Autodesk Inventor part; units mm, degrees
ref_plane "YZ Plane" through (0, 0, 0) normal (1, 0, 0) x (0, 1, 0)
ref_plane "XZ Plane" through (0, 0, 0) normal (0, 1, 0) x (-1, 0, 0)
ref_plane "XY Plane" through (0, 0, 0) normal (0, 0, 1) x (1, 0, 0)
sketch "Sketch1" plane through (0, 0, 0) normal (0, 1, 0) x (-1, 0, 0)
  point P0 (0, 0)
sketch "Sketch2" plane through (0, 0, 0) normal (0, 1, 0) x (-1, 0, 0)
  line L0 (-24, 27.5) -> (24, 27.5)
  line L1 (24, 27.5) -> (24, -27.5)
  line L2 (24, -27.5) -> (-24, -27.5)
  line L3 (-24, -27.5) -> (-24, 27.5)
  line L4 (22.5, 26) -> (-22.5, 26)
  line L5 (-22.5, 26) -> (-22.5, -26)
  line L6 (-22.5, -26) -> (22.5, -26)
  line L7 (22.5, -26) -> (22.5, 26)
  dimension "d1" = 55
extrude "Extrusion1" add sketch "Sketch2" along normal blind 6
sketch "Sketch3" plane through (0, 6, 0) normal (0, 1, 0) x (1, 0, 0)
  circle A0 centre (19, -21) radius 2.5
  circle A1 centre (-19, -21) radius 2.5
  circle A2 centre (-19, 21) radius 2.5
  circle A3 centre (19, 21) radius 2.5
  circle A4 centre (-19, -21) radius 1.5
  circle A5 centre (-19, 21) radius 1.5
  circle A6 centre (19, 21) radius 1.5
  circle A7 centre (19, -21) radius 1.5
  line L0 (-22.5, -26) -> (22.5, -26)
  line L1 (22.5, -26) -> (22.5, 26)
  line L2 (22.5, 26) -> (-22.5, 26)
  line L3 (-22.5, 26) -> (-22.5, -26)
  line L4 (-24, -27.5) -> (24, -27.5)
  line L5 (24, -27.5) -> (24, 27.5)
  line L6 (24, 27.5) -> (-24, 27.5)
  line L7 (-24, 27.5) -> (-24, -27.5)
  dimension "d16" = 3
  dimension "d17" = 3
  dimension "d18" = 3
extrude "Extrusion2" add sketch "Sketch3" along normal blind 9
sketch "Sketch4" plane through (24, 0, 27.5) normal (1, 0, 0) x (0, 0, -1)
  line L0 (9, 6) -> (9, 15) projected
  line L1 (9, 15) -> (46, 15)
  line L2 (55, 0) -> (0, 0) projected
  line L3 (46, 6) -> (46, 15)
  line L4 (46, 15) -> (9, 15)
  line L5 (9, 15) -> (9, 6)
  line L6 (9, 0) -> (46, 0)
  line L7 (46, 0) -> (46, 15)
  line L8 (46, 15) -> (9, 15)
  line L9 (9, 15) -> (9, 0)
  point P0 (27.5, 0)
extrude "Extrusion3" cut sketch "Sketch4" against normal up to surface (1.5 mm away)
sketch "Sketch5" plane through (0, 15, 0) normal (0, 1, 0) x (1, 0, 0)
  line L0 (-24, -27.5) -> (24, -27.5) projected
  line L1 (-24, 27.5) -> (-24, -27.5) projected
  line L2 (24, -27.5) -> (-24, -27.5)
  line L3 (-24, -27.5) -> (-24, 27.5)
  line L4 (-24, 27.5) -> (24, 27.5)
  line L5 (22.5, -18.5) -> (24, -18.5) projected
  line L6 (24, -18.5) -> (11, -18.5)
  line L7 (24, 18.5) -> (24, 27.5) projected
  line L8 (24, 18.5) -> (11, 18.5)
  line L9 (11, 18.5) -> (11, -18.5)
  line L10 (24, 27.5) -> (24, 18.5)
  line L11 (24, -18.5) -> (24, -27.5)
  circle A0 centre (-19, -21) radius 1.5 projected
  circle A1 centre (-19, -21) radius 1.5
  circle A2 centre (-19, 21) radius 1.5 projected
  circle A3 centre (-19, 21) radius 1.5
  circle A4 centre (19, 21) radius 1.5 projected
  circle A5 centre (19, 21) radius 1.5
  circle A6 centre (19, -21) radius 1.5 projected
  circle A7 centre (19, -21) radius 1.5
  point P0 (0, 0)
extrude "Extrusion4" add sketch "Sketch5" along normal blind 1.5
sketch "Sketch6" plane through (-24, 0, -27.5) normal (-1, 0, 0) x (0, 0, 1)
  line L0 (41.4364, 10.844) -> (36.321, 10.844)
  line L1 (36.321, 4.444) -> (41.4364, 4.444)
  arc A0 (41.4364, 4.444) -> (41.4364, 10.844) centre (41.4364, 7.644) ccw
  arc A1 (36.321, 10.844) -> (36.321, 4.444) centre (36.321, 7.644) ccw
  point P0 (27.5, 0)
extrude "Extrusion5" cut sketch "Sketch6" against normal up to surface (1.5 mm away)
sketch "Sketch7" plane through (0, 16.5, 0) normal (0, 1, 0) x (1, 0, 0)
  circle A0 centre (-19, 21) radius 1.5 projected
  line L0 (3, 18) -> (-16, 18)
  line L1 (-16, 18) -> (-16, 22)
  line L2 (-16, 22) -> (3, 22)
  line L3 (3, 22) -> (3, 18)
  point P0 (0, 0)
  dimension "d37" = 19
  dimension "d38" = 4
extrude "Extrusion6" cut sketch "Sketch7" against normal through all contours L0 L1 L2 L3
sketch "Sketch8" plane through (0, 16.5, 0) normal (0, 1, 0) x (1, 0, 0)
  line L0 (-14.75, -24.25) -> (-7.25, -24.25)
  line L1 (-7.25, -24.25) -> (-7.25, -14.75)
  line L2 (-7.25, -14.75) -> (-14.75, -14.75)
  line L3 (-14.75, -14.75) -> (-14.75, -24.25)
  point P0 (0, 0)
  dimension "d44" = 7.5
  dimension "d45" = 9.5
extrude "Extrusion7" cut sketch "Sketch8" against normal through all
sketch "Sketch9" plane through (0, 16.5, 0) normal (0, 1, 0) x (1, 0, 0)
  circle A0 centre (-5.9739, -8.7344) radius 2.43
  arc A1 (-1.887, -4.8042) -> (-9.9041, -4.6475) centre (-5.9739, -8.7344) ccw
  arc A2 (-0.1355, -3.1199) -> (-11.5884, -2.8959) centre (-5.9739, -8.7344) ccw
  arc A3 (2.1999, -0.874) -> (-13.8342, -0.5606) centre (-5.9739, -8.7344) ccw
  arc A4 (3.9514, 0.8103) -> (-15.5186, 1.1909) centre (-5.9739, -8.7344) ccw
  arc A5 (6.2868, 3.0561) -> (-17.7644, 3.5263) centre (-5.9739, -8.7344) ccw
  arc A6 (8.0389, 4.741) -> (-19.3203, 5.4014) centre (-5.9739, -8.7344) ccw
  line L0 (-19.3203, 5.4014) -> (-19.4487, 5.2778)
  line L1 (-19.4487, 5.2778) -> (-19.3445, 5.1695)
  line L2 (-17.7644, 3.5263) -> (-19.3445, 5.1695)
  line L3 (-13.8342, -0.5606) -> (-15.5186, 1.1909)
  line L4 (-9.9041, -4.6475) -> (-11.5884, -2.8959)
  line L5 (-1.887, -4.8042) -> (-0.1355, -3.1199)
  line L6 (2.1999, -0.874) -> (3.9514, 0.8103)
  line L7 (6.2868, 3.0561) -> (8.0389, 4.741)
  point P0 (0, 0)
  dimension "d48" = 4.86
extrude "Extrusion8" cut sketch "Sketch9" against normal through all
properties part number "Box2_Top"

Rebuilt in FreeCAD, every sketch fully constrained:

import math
import FreeCAD as App
import Part
import Sketcher

V = App.Vector
Q = App.Units.Quantity


def add_polygon(sketch, points):
    """Adds a closed chain of lines whose ends are joined by coincident constraints."""
    first, n = sketch.GeometryCount, len(points)
    for a, b in zip(points, points[1:] + points[:1]):
        sketch.addGeometry(Part.LineSegment(App.Vector(*a, 0), App.Vector(*b, 0)), False)
    for i in range(n):
        sketch.addConstraint(Sketcher.Constraint("Coincident", first + i, 2, first + (i + 1) % n, 1))

doc = App.newDocument("Part")
body = doc.addObject("PartDesign::Body", "Body")
body.AllowCompound = True

# Sketch on XZ plane
sketch1 = body.newObject("Sketcher::SketchObject", "Sketch")
sketch1.AttachmentSupport = (doc.getObject("XZ_Plane"), [""])
sketch1.MapMode = "FlatFace"
add_polygon(sketch1, [(-24, 27.5), (24, 27.5), (24, -27.5), (-24, -27.5)])  # lines 0-3
add_polygon(sketch1, [(22.5, 26), (-22.5, 26), (-22.5, -26), (22.5, -26)])  # lines 4-7
sketch1.addConstraint(Sketcher.Constraint("Horizontal", 0))
sketch1.addConstraint(Sketcher.Constraint("Vertical", 1))
sketch1.addConstraint(Sketcher.Constraint("Horizontal", 2))
sketch1.addConstraint(Sketcher.Constraint("Vertical", 3))
sketch1.addConstraint(Sketcher.Constraint("Horizontal", 4))
sketch1.addConstraint(Sketcher.Constraint("Vertical", 5))
sketch1.addConstraint(Sketcher.Constraint("Horizontal", 6))
sketch1.addConstraint(Sketcher.Constraint("Vertical", 7))
sketch1.addConstraint(Sketcher.Constraint("Symmetric", 0, 2, 2, 2, -1, 1))
sketch1.addConstraint(Sketcher.Constraint("Symmetric", 4, 2, 6, 2, -1, 1))
sketch1.addConstraint(Sketcher.Constraint("DistanceY", 1, 2, 1, 1, Q("55 mm")))
sketch1.addConstraint(Sketcher.Constraint("DistanceX", 0, 1, 0, 2, Q("48 mm")))
sketch1.addConstraint(Sketcher.Constraint("DistanceX", 4, 2, 4, 1, Q("45 mm")))
sketch1.addConstraint(Sketcher.Constraint("DistanceY", 5, 2, 5, 1, Q("52 mm")))
pad1 = body.newObject("PartDesign::Pad", "Pad")
pad1.Profile = sketch1
pad1.Length = 6
pad1.Reversed = True

# Sketch on XZ plane
sketch2 = body.newObject("Sketcher::SketchObject", "Sketch001")
sketch2.AttachmentSupport = (doc.getObject("XZ_Plane"), [""])
sketch2.MapMode = "FlatFace"
sketch2.AttachmentOffset = App.Placement(V(0, 0, -6), App.Rotation())
sketch2.addGeometry(Part.Circle(V(19, 21, 0), V(0, 0, 1), 2.5), False)  # 0
sketch2.addGeometry(Part.Circle(V(19, 21, 0), V(0, 0, 1), 1.5), False)  # 1
sketch2.addGeometry(Part.Circle(V(-19, 21, 0), V(0, 0, 1), 2.5), False)  # 2
sketch2.addGeometry(Part.Circle(V(-19, 21, 0), V(0, 0, 1), 1.5), False)  # 3
sketch2.addGeometry(Part.Circle(V(-19, -21, 0), V(0, 0, 1), 2.5), False)  # 4
sketch2.addGeometry(Part.Circle(V(-19, -21, 0), V(0, 0, 1), 1.5), False)  # 5
sketch2.addGeometry(Part.Circle(V(19, -21, 0), V(0, 0, 1), 2.5), False)  # 6
sketch2.addGeometry(Part.Circle(V(19, -21, 0), V(0, 0, 1), 1.5), False)  # 7
add_polygon(sketch2, [(-24, -27.5), (-24, 27.5), (24, 27.5), (24, -27.5)])  # lines 8-11
add_polygon(sketch2, [(22.5, 26), (-22.5, 26), (-22.5, -26), (22.5, -26)])  # lines 12-15
sketch2.addConstraint(Sketcher.Constraint("Vertical", 8))
sketch2.addConstraint(Sketcher.Constraint("Horizontal", 9))
sketch2.addConstraint(Sketcher.Constraint("Vertical", 10))
sketch2.addConstraint(Sketcher.Constraint("Horizontal", 11))
sketch2.addConstraint(Sketcher.Constraint("Horizontal", 12))
sketch2.addConstraint(Sketcher.Constraint("Vertical", 13))
sketch2.addConstraint(Sketcher.Constraint("Horizontal", 14))
sketch2.addConstraint(Sketcher.Constraint("Vertical", 15))
sketch2.addConstraint(Sketcher.Constraint("Coincident", 1, 3, 0, 3))
sketch2.addConstraint(Sketcher.Constraint("Coincident", 3, 3, 2, 3))
sketch2.addConstraint(Sketcher.Constraint("Coincident", 5, 3, 4, 3))
sketch2.addConstraint(Sketcher.Constraint("Coincident", 7, 3, 6, 3))
sketch2.addConstraint(Sketcher.Constraint("Equal", 0, 2))
sketch2.addConstraint(Sketcher.Constraint("Equal", 1, 3))
sketch2.addConstraint(Sketcher.Constraint("Equal", 2, 4))
sketch2.addConstraint(Sketcher.Constraint("Equal", 3, 5))
sketch2.addConstraint(Sketcher.Constraint("Equal", 4, 6))
sketch2.addConstraint(Sketcher.Constraint("Equal", 5, 7))
sketch2.addConstraint(Sketcher.Constraint("Symmetric", 0, 3, 4, 3, -1, 1))
sketch2.addConstraint(Sketcher.Constraint("Symmetric", 2, 3, 6, 3, -1, 1))
sketch2.addConstraint(Sketcher.Constraint("Symmetric", 8, 2, 10, 2, -1, 1))
sketch2.addConstraint(Sketcher.Constraint("Symmetric", 12, 2, 14, 2, -1, 1))
sketch2.addConstraint(Sketcher.Constraint("Symmetric", 0, 3, 2, 3, -2))
sketch2.addConstraint(Sketcher.Constraint("Diameter", 1, Q("3 mm")))
sketch2.addConstraint(Sketcher.Constraint("Diameter", 0, Q("5 mm")))
sketch2.addConstraint(Sketcher.Constraint("DistanceX", 9, 1, 9, 2, Q("48 mm")))
sketch2.addConstraint(Sketcher.Constraint("DistanceX", 12, 2, 12, 1, Q("45 mm")))
sketch2.addConstraint(Sketcher.Constraint("DistanceY", 8, 1, 8, 2, Q("55 mm")))
sketch2.addConstraint(Sketcher.Constraint("DistanceY", 13, 2, 13, 1, Q("52 mm")))
sketch2.addConstraint(Sketcher.Constraint("DistanceX", -1, 1, 0, 3, Q("19 mm")))
sketch2.addConstraint(Sketcher.Constraint("DistanceY", -1, 1, 0, 3, Q("21 mm")))
pad2 = body.newObject("PartDesign::Pad", "Pad001")
pad2.Profile = sketch2
pad2.Length = 9
pad2.Reversed = True

# Sketch on YZ plane
sketch3 = body.newObject("Sketcher::SketchObject", "Sketch002")
sketch3.AttachmentSupport = (doc.getObject("YZ_Plane"), [""])
sketch3.MapMode = "FlatFace"
sketch3.AttachmentOffset = App.Placement(V(0, 0, 24), App.Rotation())
add_polygon(sketch3, [(15, 18.5), (0, 18.5), (0, -18.5), (15, -18.5)])  # lines 0-3
sketch3.addConstraint(Sketcher.Constraint("Horizontal", 0))
sketch3.addConstraint(Sketcher.Constraint("Vertical", 1))
sketch3.addConstraint(Sketcher.Constraint("Horizontal", 2))
sketch3.addConstraint(Sketcher.Constraint("Vertical", 3))
sketch3.addConstraint(Sketcher.Constraint("Symmetric", 0, 2, 1, 2, -1, 1))
sketch3.addConstraint(Sketcher.Constraint("DistanceX", 0, 2, 0, 1, Q("15 mm")))
sketch3.addConstraint(Sketcher.Constraint("DistanceY", 1, 2, 1, 1, Q("37 mm")))
pocket1 = body.newObject("PartDesign::Pocket", "Pocket")
pocket1.Profile = sketch3
pocket1.Length = 1.5

# Sketch on XZ plane
sketch4 = body.newObject("Sketcher::SketchObject", "Sketch003")
sketch4.AttachmentSupport = (doc.getObject("XZ_Plane"), [""])
sketch4.MapMode = "FlatFace"
sketch4.AttachmentOffset = App.Placement(V(0, 0, -15), App.Rotation())
add_polygon(sketch4, [(-24, -27.5), (-24, 27.5), (24, 27.5), (24, 18.5), (11, 18.5), (11, -18.5), (24, -18.5), (24, -27.5)])  # lines 0-7
sketch4.addGeometry(Part.Circle(V(-19, 21, 0), V(0, 0, 1), 1.5), False)  # 8
sketch4.addGeometry(Part.Circle(V(19, 21, 0), V(0, 0, 1), 1.5), False)  # 9
sketch4.addGeometry(Part.Circle(V(-19, -21, 0), V(0, 0, 1), 1.5), False)  # 10
sketch4.addGeometry(Part.Circle(V(19, -21, 0), V(0, 0, 1), 1.5), False)  # 11
sketch4.addConstraint(Sketcher.Constraint("Vertical", 0))
sketch4.addConstraint(Sketcher.Constraint("Horizontal", 1))
sketch4.addConstraint(Sketcher.Constraint("Vertical", 2))
sketch4.addConstraint(Sketcher.Constraint("Horizontal", 3))
sketch4.addConstraint(Sketcher.Constraint("Vertical", 4))
sketch4.addConstraint(Sketcher.Constraint("Horizontal", 5))
sketch4.addConstraint(Sketcher.Constraint("Vertical", 6))
sketch4.addConstraint(Sketcher.Constraint("Horizontal", 7))
sketch4.addConstraint(Sketcher.Constraint("Equal", 8, 9))
sketch4.addConstraint(Sketcher.Constraint("Equal", 9, 10))
sketch4.addConstraint(Sketcher.Constraint("Equal", 10, 11))
sketch4.addConstraint(Sketcher.Constraint("Symmetric", 9, 3, 10, 3, -1, 1))
sketch4.addConstraint(Sketcher.Constraint("Symmetric", 8, 3, 11, 3, -1, 1))
sketch4.addConstraint(Sketcher.Constraint("Symmetric", 0, 2, 6, 2, -1, 1))
sketch4.addConstraint(Sketcher.Constraint("Symmetric", 8, 3, 9, 3, -2))
sketch4.addConstraint(Sketcher.Constraint("Symmetric", 2, 2, 5, 2, -1))
sketch4.addConstraint(Sketcher.Constraint("Diameter", 8, Q("3 mm")))
sketch4.addConstraint(Sketcher.Constraint("DistanceX", 1, 1, 1, 2, Q("48 mm")))
sketch4.addConstraint(Sketcher.Constraint("DistanceX", 3, 2, 3, 1, Q("13 mm")))
sketch4.addConstraint(Sketcher.Constraint("DistanceY", 0, 1, 0, 2, Q("55 mm")))
sketch4.addConstraint(Sketcher.Constraint("DistanceY", 2, 2, 2, 1, Q("9 mm")))
sketch4.addConstraint(Sketcher.Constraint("DistanceX", 8, 3, -1, 1, Q("19 mm")))
sketch4.addConstraint(Sketcher.Constraint("DistanceY", -1, 1, 8, 3, Q("21 mm")))
pad3 = body.newObject("PartDesign::Pad", "Pad002")
pad3.Profile = sketch4
pad3.Length = 1.5
pad3.Reversed = True

# Sketch on YZ plane
sketch5 = body.newObject("Sketcher::SketchObject", "Sketch004")
sketch5.AttachmentSupport = (doc.getObject("YZ_Plane"), [""])
sketch5.MapMode = "FlatFace"
sketch5.AttachmentOffset = App.Placement(V(0, 0, -24), App.Rotation())
sketch5.addGeometry(Part.ArcOfCircle(Part.Circle(V(7.644, 13.9364, 0), V(0, 0, 1), 3.2), math.radians(0), math.radians(180)), False)
sketch5.addGeometry(Part.LineSegment(V(10.844, 13.9364, 0), V(10.844, 8.821, 0)), False)
sketch5.addGeometry(Part.ArcOfCircle(Part.Circle(V(7.644, 8.821, 0), V(0, 0, 1), 3.2), math.radians(180), math.radians(360)), False)
sketch5.addGeometry(Part.LineSegment(V(4.444, 8.821, 0), V(4.444, 13.9364, 0)), False)
sketch5.addConstraint(Sketcher.Constraint("Tangent", 0, 1, 1, 1))
sketch5.addConstraint(Sketcher.Constraint("Tangent", 1, 2, 2, 2))
sketch5.addConstraint(Sketcher.Constraint("Tangent", 2, 1, 3, 1))
sketch5.addConstraint(Sketcher.Constraint("Tangent", 3, 2, 0, 2))
sketch5.addConstraint(Sketcher.Constraint("Vertical", 1))
sketch5.addConstraint(Sketcher.Constraint("Vertical", 3))
sketch5.addConstraint(Sketcher.Constraint("Radius", 0, Q("3.2 mm")))
sketch5.addConstraint(Sketcher.Constraint("DistanceY", 1, 2, 1, 1, Q("5.1154 mm")))
sketch5.addConstraint(Sketcher.Constraint("DistanceX", -1, 1, 0, 3, Q("7.644 mm")))
sketch5.addConstraint(Sketcher.Constraint("DistanceY", -1, 1, 2, 3, Q("8.821 mm")))
pocket2 = body.newObject("PartDesign::Pocket", "Pocket001")
pocket2.Profile = sketch5
pocket2.Length = 1.5
pocket2.Reversed = True

# Sketch on XZ plane
sketch6 = body.newObject("Sketcher::SketchObject", "Sketch005")
sketch6.AttachmentSupport = (doc.getObject("XZ_Plane"), [""])
sketch6.MapMode = "FlatFace"
sketch6.AttachmentOffset = App.Placement(V(0, 0, -16.5), App.Rotation())
add_polygon(sketch6, [(-16, -18), (3, -18), (3, -22), (-16, -22)])  # lines 0-3
sketch6.addConstraint(Sketcher.Constraint("Horizontal", 0))
sketch6.addConstraint(Sketcher.Constraint("Vertical", 1))
sketch6.addConstraint(Sketcher.Constraint("Horizontal", 2))
sketch6.addConstraint(Sketcher.Constraint("Vertical", 3))
sketch6.addConstraint(Sketcher.Constraint("DistanceX", 0, 1, 0, 2, Q("19 mm")))
sketch6.addConstraint(Sketcher.Constraint("DistanceY", 1, 2, 1, 1, Q("4 mm")))
sketch6.addConstraint(Sketcher.Constraint("DistanceX", -1, 1, 0, 2, Q("3 mm")))
sketch6.addConstraint(Sketcher.Constraint("DistanceY", 0, 2, -1, 1, Q("18 mm")))
pocket3 = body.newObject("PartDesign::Pocket", "Pocket002")
pocket3.Profile = sketch6
pocket3.Type = "ThroughAll"
pocket3.Reversed = True

# Sketch on XZ plane
sketch7 = body.newObject("Sketcher::SketchObject", "Sketch006")
sketch7.AttachmentSupport = (doc.getObject("XZ_Plane"), [""])
sketch7.MapMode = "FlatFace"
sketch7.AttachmentOffset = App.Placement(V(0, 0, -16.5), App.Rotation())
add_polygon(sketch7, [(-14.75, 14.75), (-14.75, 24.25), (-7.25, 24.25), (-7.25, 14.75)])  # lines 0-3
sketch7.addConstraint(Sketcher.Constraint("Vertical", 0))
sketch7.addConstraint(Sketcher.Constraint("Horizontal", 1))
sketch7.addConstraint(Sketcher.Constraint("Vertical", 2))
sketch7.addConstraint(Sketcher.Constraint("Horizontal", 3))
sketch7.addConstraint(Sketcher.Constraint("DistanceX", 1, 1, 1, 2, Q("7.5 mm")))
sketch7.addConstraint(Sketcher.Constraint("DistanceY", 0, 1, 0, 2, Q("9.5 mm")))
sketch7.addConstraint(Sketcher.Constraint("DistanceX", 0, 2, -1, 1, Q("14.75 mm")))
sketch7.addConstraint(Sketcher.Constraint("DistanceY", -1, 1, 0, 2, Q("24.25 mm")))
pocket4 = body.newObject("PartDesign::Pocket", "Pocket003")
pocket4.Profile = sketch7
pocket4.Type = "ThroughAll"
pocket4.Reversed = True

# Sketch on XZ plane
sketch8 = body.newObject("Sketcher::SketchObject", "Sketch007")
sketch8.AttachmentSupport = (doc.getObject("XZ_Plane"), [""])
sketch8.MapMode = "FlatFace"
sketch8.AttachmentOffset = App.Placement(V(0, 0, -16.5), App.Rotation())
sketch8.addGeometry(Part.Circle(V(-5.9739, 8.7344, 0), V(0, 0, 1), 2.43), False)
sketch8.addGeometry(Part.ArcOfCircle(Part.Circle(V(-5.9739, 8.7344, 0), V(0, 0, 1), 5.670029), math.radians(-133.880255), math.radians(-43.880255)), False)
sketch8.addGeometry(Part.LineSegment(V(-1.887, 4.8042, 0), V(-0.1355, 3.1199, 0)), False)
sketch8.addGeometry(Part.ArcOfCircle(Part.Circle(V(-5.9739, 8.7344, 0), V(0, 0, 1), 8.099971), math.radians(-133.879541), math.radians(-43.880031)), False)
sketch8.addGeometry(Part.LineSegment(V(-11.5884, 2.8959, 0), V(-9.9041, 4.6475, 0)), False)
sketch8.addGeometry(Part.ArcOfCircle(Part.Circle(V(-5.9739, 8.7344, 0), V(0, 0, 1), 11.340057), math.radians(-133.879891), math.radians(-43.880255)), False)
sketch8.addGeometry(Part.LineSegment(V(2.1999, 0.874, 0), V(3.9514, -0.8103, 0)), False)
sketch8.addGeometry(Part.ArcOfCircle(Part.Circle(V(-5.9739, 8.7344, 0), V(0, 0, 1), 13.769999), math.radians(-133.880123), math.radians(-43.880123)), False)
sketch8.addGeometry(Part.LineSegment(V(-15.5186, -1.1909, 0), V(-13.8342, 0.5606, 0)), False)
sketch8.addGeometry(Part.ArcOfCircle(Part.Circle(V(-5.9739, 8.7344, 0), V(0, 0, 1), 17.010016), math.radians(-133.880012), math.radians(-43.880012)), False)
sketch8.addGeometry(Part.LineSegment(V(6.2868, -3.0561, 0), V(8.0389, -4.741, 0)), False)
sketch8.addGeometry(Part.ArcOfCircle(Part.Circle(V(-5.9739, 8.7344, 0), V(0, 0, 1), 19.440807), math.radians(-133.354686), math.radians(-43.879998)), False)
sketch8.addGeometry(Part.LineSegment(V(-19.3203, -5.4014, 0), V(-19.4487, -5.2778, 0)), False)
sketch8.addGeometry(Part.LineSegment(V(-19.4487, -5.2778, 0), V(-19.3445, -5.1695, 0)), False)
sketch8.addGeometry(Part.LineSegment(V(-19.3445, -5.1695, 0), V(-17.7644, -3.5263, 0)), False)
sketch8.addConstraint(Sketcher.Constraint("Coincident", 1, 2, 2, 1))
sketch8.addConstraint(Sketcher.Constraint("Coincident", 2, 2, 3, 2))
sketch8.addConstraint(Sketcher.Constraint("Coincident", 3, 1, 4, 1))
sketch8.addConstraint(Sketcher.Constraint("Coincident", 4, 2, 1, 1))
sketch8.addConstraint(Sketcher.Constraint("Coincident", 5, 2, 6, 1))
sketch8.addConstraint(Sketcher.Constraint("Coincident", 6, 2, 7, 2))
sketch8.addConstraint(Sketcher.Constraint("Coincident", 7, 1, 8, 1))
sketch8.addConstraint(Sketcher.Constraint("Coincident", 8, 2, 5, 1))
sketch8.addConstraint(Sketcher.Constraint("Coincident", 9, 2, 10, 1))
sketch8.addConstraint(Sketcher.Constraint("Coincident", 10, 2, 11, 2))
sketch8.addConstraint(Sketcher.Constraint("Coincident", 11, 1, 12, 1))
sketch8.addConstraint(Sketcher.Constraint("Coincident", 12, 2, 13, 1))
sketch8.addConstraint(Sketcher.Constraint("Coincident", 13, 2, 14, 1))
sketch8.addConstraint(Sketcher.Constraint("Coincident", 14, 2, 9, 1))
sketch8.addConstraint(Sketcher.Constraint("Coincident", 1, 3, 0, 3))
sketch8.addConstraint(Sketcher.Constraint("Coincident", 3, 3, 0, 3))
sketch8.addConstraint(Sketcher.Constraint("Coincident", 5, 3, 0, 3))
sketch8.addConstraint(Sketcher.Constraint("Coincident", 7, 3, 0, 3))
sketch8.addConstraint(Sketcher.Constraint("Coincident", 9, 3, 0, 3))
sketch8.addConstraint(Sketcher.Constraint("Coincident", 11, 3, 0, 3))
sketch8.addConstraint(Sketcher.Constraint("Diameter", 0, Q("4.86 mm")))
sketch8.addConstraint(Sketcher.Constraint("Radius", 3, Q("8.1 mm")))
sketch8.addConstraint(Sketcher.Constraint("Radius", 1, Q("5.67 mm")))
sketch8.addConstraint(Sketcher.Constraint("Radius", 5, Q("11.34 mm")))
sketch8.addConstraint(Sketcher.Constraint("Radius", 7, Q("13.77 mm")))
sketch8.addConstraint(Sketcher.Constraint("Radius", 9, Q("17.01 mm")))
sketch8.addConstraint(Sketcher.Constraint("DistanceX", -1, 1, 5, 2, Q("2.2 mm")))
sketch8.addConstraint(Sketcher.Constraint("Radius", 11, Q("19.4408 mm")))
sketch8.addConstraint(Sketcher.Constraint("DistanceY", -1, 1, 2, 2, Q("3.12 mm")))
sketch8.addConstraint(Sketcher.Constraint("DistanceX", 8, 2, 4, 2, Q("3.93 mm")))
sketch8.addConstraint(Sketcher.Constraint("DistanceY", 9, 2, 5, 2, Q("3.93 mm")))
sketch8.addConstraint(Sketcher.Constraint("DistanceX", 12, 2, 7, 1, Q("3.93 mm")))
sketch8.addConstraint(Sketcher.Constraint("DistanceY", 13, 2, 8, 2, Q("5.73 mm")))
sketch8.addConstraint(Sketcher.Constraint("DistanceX", 13, 2, 14, 2, Q("1.58 mm")))
sketch8.addConstraint(Sketcher.Constraint("DistanceX", 0, 3, -1, 1, Q("5.974 mm")))
sketch8.addConstraint(Sketcher.Constraint("DistanceX", 1, 2, -1, 1, Q("1.887 mm")))
sketch8.addConstraint(Sketcher.Constraint("DistanceY", -1, 1, 3, 1, Q("2.896 mm")))
sketch8.addConstraint(Sketcher.Constraint("DistanceX", 4, 2, -1, 1, Q("9.904 mm")))
sketch8.addConstraint(Sketcher.Constraint("DistanceY", -1, 1, 5, 2, Q("0.874 mm")))
sketch8.addConstraint(Sketcher.Constraint("DistanceY", 7, 1, -1, 1, Q("1.191 mm")))
sketch8.addConstraint(Sketcher.Constraint("DistanceX", -1, 1, 10, 2, Q("8.039 mm")))
sketch8.addConstraint(Sketcher.Constraint("DistanceX", 2, 2, 6, 2, Q("4.087 mm")))
sketch8.addConstraint(Sketcher.Constraint("DistanceX", 11, 1, 8, 2, Q("5.486 mm")))
sketch8.addConstraint(Sketcher.Constraint("DistanceY", 12, 2, 7, 1, Q("4.087 mm")))
sketch8.addConstraint(Sketcher.Constraint("DistanceX", 13, 2, 7, 1, Q("3.826 mm")))
pocket5 = body.newObject("PartDesign::Pocket", "Pocket004")
pocket5.Profile = sketch8
pocket5.Type = "ThroughAll"
pocket5.Reversed = True

doc.recompute()
